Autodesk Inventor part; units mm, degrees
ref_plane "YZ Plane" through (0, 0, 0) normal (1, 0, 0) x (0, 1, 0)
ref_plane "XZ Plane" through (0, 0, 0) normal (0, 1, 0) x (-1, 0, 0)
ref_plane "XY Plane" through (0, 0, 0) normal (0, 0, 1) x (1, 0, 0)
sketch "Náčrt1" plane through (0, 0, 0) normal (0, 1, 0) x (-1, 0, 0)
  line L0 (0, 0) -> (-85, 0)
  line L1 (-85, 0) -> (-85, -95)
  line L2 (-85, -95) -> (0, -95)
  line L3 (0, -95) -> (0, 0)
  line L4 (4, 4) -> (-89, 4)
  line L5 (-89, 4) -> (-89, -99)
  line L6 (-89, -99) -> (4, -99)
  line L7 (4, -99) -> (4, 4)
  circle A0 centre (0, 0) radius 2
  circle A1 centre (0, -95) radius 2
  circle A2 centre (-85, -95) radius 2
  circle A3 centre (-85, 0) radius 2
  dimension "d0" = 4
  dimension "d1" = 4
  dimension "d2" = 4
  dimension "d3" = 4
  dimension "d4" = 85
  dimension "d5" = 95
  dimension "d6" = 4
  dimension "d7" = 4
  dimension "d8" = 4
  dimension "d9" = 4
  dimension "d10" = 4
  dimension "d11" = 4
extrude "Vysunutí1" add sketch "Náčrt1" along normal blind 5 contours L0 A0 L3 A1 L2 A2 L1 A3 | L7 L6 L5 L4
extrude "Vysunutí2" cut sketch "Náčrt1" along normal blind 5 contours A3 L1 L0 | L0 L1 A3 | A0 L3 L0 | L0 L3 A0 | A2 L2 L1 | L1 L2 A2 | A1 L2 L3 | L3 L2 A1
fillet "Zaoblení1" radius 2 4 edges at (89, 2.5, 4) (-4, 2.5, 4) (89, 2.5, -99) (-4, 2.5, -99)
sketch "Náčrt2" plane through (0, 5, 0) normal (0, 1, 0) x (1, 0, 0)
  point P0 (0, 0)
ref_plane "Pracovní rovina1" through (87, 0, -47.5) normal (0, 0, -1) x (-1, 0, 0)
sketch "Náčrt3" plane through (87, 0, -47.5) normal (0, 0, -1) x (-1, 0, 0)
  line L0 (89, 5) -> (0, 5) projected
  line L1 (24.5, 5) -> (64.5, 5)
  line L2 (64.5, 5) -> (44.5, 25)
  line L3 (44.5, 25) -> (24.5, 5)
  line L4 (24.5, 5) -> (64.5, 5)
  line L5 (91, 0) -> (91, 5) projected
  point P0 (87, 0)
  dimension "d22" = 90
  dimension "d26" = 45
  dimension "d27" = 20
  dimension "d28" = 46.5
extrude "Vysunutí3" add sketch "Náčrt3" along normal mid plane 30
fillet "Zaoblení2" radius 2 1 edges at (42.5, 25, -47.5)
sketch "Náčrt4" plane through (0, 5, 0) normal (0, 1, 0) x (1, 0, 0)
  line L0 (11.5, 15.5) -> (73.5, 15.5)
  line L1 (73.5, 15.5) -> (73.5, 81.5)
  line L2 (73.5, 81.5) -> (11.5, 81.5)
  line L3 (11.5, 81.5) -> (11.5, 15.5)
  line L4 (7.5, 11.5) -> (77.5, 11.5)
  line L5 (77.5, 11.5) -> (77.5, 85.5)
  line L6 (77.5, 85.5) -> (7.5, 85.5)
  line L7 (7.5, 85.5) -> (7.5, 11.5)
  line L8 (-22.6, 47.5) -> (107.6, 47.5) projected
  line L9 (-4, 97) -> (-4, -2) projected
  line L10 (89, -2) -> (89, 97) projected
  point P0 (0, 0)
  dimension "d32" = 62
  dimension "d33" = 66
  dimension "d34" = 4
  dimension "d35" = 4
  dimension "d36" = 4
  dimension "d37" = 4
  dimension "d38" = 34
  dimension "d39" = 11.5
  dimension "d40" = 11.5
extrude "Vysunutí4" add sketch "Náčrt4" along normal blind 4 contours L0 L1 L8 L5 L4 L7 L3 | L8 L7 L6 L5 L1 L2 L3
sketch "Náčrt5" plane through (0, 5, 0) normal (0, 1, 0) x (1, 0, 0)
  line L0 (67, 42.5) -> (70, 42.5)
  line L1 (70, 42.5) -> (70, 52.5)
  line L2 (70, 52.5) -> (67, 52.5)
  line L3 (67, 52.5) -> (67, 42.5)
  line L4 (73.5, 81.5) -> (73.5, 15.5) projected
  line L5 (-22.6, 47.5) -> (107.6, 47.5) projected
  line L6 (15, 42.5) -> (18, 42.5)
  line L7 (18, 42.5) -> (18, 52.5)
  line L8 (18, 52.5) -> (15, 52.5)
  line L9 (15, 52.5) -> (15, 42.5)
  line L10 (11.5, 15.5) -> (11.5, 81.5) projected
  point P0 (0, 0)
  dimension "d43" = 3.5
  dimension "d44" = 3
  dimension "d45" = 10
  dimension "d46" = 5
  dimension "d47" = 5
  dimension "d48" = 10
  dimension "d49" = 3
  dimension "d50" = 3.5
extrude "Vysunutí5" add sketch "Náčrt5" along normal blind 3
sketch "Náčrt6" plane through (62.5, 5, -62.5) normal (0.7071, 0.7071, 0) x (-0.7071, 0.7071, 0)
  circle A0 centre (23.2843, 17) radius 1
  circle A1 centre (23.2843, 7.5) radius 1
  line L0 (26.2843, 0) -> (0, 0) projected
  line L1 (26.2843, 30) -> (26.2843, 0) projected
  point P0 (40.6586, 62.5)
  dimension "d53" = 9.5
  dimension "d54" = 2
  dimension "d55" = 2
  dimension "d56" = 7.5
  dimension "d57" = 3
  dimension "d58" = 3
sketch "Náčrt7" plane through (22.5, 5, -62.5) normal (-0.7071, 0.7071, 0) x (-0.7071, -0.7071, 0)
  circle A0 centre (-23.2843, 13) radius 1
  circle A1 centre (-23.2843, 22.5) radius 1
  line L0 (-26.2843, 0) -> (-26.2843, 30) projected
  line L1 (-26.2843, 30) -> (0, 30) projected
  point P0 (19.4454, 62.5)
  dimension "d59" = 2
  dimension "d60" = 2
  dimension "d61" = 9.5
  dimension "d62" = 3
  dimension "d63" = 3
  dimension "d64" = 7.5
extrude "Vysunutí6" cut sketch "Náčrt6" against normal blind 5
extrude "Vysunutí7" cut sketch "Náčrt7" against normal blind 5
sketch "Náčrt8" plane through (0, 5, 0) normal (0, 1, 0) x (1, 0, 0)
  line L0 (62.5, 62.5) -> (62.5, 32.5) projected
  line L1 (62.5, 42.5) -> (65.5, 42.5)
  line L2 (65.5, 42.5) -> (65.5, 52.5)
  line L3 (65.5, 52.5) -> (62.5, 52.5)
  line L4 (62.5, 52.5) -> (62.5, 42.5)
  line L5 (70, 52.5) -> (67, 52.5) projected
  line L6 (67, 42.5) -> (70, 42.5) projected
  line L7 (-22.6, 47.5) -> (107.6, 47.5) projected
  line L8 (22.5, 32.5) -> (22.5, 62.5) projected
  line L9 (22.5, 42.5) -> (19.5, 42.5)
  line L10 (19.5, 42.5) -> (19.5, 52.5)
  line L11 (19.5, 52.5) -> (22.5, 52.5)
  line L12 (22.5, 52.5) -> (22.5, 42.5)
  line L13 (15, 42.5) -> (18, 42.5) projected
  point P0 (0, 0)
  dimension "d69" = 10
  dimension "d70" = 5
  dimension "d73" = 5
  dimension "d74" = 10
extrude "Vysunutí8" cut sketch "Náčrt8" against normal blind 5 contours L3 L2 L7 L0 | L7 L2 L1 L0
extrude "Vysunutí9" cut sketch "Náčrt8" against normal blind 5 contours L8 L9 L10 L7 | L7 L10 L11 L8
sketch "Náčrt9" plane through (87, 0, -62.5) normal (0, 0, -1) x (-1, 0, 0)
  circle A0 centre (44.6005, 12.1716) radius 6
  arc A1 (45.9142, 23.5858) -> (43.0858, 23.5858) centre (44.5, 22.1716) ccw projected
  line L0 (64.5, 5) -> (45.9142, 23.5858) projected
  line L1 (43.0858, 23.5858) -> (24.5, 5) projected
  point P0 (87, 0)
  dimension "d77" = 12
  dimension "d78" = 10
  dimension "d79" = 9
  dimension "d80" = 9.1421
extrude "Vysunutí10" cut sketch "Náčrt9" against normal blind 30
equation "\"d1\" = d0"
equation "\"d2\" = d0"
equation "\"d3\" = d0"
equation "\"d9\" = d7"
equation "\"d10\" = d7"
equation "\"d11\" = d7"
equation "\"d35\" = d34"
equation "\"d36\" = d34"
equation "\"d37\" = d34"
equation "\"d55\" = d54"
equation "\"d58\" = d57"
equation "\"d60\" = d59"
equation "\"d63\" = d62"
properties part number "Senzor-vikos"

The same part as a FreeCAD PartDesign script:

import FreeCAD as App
import Part
import Sketcher

V = App.Vector
Q = App.Units.Quantity


def edges_at(feature, points):
    """Names of the edges that pass closest to the given points."""
    edges = feature.Shape.Edges
    near = lambda p: min(range(len(edges)), key=lambda i: edges[i].distToShape(Part.Vertex(*p))[0])
    return sorted({f"Edge{near(p) + 1}" for p in points})

doc = App.newDocument("Part")
body = doc.addObject("PartDesign::Body", "Body")

sketch1 = body.newObject("Sketcher::SketchObject", "Sketch")
sketch1.AttachmentSupport = (doc.getObject("XZ_Plane"), [""])
sketch1.MapMode = "FlatFace"
sketch1.addGeometry([
    Part.LineSegment(V(-4, -99, 0), V(-4, 4, 0)),
    Part.LineSegment(V(-4, 4, 0), V(89, 4, 0)),
    Part.LineSegment(V(89, 4, 0), V(89, -99, 0)),
    Part.LineSegment(V(89, -99, 0), V(-4, -99, 0)),
    Part.Circle(V(0, 0, 0), V(0, 0, 1), 2),
    Part.Circle(V(0, -95, 0), V(0, 0, 1), 2),
    Part.Circle(V(85, -95, 0), V(0, 0, 1), 2),
    Part.Circle(V(85, 0, 0), V(0, 0, 1), 2),
], False)
sketch1.addConstraint([
    Sketcher.Constraint("Coincident", 0, 2, 1, 1),
    Sketcher.Constraint("Coincident", 1, 2, 2, 1),
    Sketcher.Constraint("Coincident", 2, 2, 3, 1),
    Sketcher.Constraint("Coincident", 3, 2, 0, 1),
    Sketcher.Constraint("Vertical", 0),
    Sketcher.Constraint("Horizontal", 1),
    Sketcher.Constraint("Vertical", 2),
    Sketcher.Constraint("Horizontal", 3),
    Sketcher.Constraint("Coincident", 4, 3, -1, 1),
    Sketcher.Constraint("Equal", 4, 5),
    Sketcher.Constraint("Equal", 5, 6),
    Sketcher.Constraint("Equal", 6, 7),
    Sketcher.Constraint("PointOnObject", 5, 3, -2),
    Sketcher.Constraint("PointOnObject", 7, 3, -1),
    Sketcher.Constraint("Horizontal", 5, 3, 6, 3),
    Sketcher.Constraint("Vertical", 6, 3, 7, 3),
    Sketcher.Constraint("Diameter", 4, Q("4 mm")),
    Sketcher.Constraint("DistanceY", 5, 3, -1, 1, Q("95 mm")),
    Sketcher.Constraint("DistanceX", -1, 1, 6, 3, Q("85 mm")),
    Sketcher.Constraint("DistanceX", 0, 2, -1, 1, Q("4 mm")),
    Sketcher.Constraint("DistanceY", -1, 1, 0, 2, Q("4 mm")),
    Sketcher.Constraint("DistanceX", 7, 3, 1, 2, Q("4 mm")),
    Sketcher.Constraint("DistanceY", 2, 2, 6, 3, Q("4 mm")),
])
pad1 = body.newObject("PartDesign::Pad", "Pad")
pad1.Profile = sketch1
pad1.Length = 5
pad1.Reversed = True

sketch2 = body.newObject("Sketcher::SketchObject", "Sketch001")
sketch2.AttachmentSupport = (doc.getObject("XZ_Plane"), [""])
sketch2.MapMode = "FlatFace"
sketch2.addGeometry([
    Part.Circle(V(85, 0, 0), V(0, 0, 1), 2),
    Part.Circle(V(0, 0, 0), V(0, 0, 1), 2),
    Part.Circle(V(85, -95, 0), V(0, 0, 1), 2),
    Part.Circle(V(0, -95, 0), V(0, 0, 1), 2),
], False)
sketch2.addConstraint([
    Sketcher.Constraint("Coincident", 1, 3, -1, 1),
    Sketcher.Constraint("Equal", 0, 1),
    Sketcher.Constraint("Equal", 1, 2),
    Sketcher.Constraint("Equal", 2, 3),
    Sketcher.Constraint("PointOnObject", 0, 3, -1),
    Sketcher.Constraint("PointOnObject", 3, 3, -2),
    Sketcher.Constraint("Horizontal", 2, 3, 3, 3),
    Sketcher.Constraint("Vertical", 0, 3, 2, 3),
    Sketcher.Constraint("Diameter", 0, Q("4 mm")),
    Sketcher.Constraint("DistanceX", -1, 1, 0, 3, Q("85 mm")),
    Sketcher.Constraint("DistanceY", 2, 3, -1, 1, Q("95 mm")),
])
pocket1 = body.newObject("PartDesign::Pocket", "Pocket")
pocket1.Profile = sketch2
pocket1.Length = 5
doc.recompute()

fillet = body.newObject("PartDesign::Fillet", "Fillet")
fillet.Base = (pocket1, edges_at(pocket1, [
    (89, 2.5, 4),
    (-4, 2.5, 4),
    (89, 2.5, -99),
    (-4, 2.5, -99),
]))
fillet.Radius = 2

sketch3 = body.newObject("Sketcher::SketchObject", "Sketch002")
sketch3.AttachmentSupport = (doc.getObject("XY_Plane"), [""])
sketch3.MapMode = "FlatFace"
sketch3.AttachmentOffset = App.Placement(V(0, 0, -47.5), App.Rotation())
sketch3.addGeometry([
    Part.LineSegment(V(62.5, 5, 0), V(22.5, 5, 0)),
    Part.LineSegment(V(22.5, 5, 0), V(42.5, 25, 0)),
    Part.LineSegment(V(42.5, 25, 0), V(62.5, 5, 0)),
], False)
sketch3.addConstraint([
    Sketcher.Constraint("Coincident", 0, 2, 1, 1),
    Sketcher.Constraint("Coincident", 1, 2, 2, 1),
    Sketcher.Constraint("Coincident", 2, 2, 0, 1),
    Sketcher.Constraint("Horizontal", 0),
    Sketcher.Constraint("Perpendicular", 1, 2),
    Sketcher.Constraint("Equal", 1, 2),
    Sketcher.Constraint("DistanceX", 0, 2, 1, 2, Q("20 mm")),
    Sketcher.Constraint("DistanceY", -1, 1, 0, 2, Q("5 mm")),
    Sketcher.Constraint("DistanceX", -1, 1, 0, 2, Q("22.5 mm")),
])
pad2 = body.newObject("PartDesign::Pad", "Pad001")
pad2.Profile = sketch3
pad2.Length = 30
pad2.Midplane = True
doc.recompute()

fillet2 = body.newObject("PartDesign::Fillet", "Fillet001")
fillet2.Base = (pad2, edges_at(pad2, [(42.5, 25, -47.5)]))
fillet2.Radius = 2

sketch4 = body.newObject("Sketcher::SketchObject", "Sketch003")
sketch4.AttachmentSupport = (doc.getObject("XZ_Plane"), [""])
sketch4.MapMode = "FlatFace"
sketch4.AttachmentOffset = App.Placement(V(0, 0, -5), App.Rotation())
sketch4.addGeometry([
    Part.LineSegment(V(77.5, -11.5, 0), V(77.5, -85.5, 0)),
    Part.LineSegment(V(77.5, -85.5, 0), V(7.5, -85.5, 0)),
    Part.LineSegment(V(7.5, -85.5, 0), V(7.5, -11.5, 0)),
    Part.LineSegment(V(7.5, -11.5, 0), V(77.5, -11.5, 0)),
    Part.LineSegment(V(73.5, -15.5, 0), V(11.5, -15.5, 0)),
    Part.LineSegment(V(11.5, -15.5, 0), V(11.5, -81.5, 0)),
    Part.LineSegment(V(11.5, -81.5, 0), V(73.5, -81.5, 0)),
    Part.LineSegment(V(73.5, -81.5, 0), V(73.5, -15.5, 0)),
], False)
sketch4.addConstraint([
    Sketcher.Constraint("Coincident", 0, 2, 1, 1),
    Sketcher.Constraint("Coincident", 1, 2, 2, 1),
    Sketcher.Constraint("Coincident", 2, 2, 3, 1),
    Sketcher.Constraint("Coincident", 3, 2, 0, 1),
    Sketcher.Constraint("Coincident", 4, 2, 5, 1),
    Sketcher.Constraint("Coincident", 5, 2, 6, 1),
    Sketcher.Constraint("Coincident", 6, 2, 7, 1),
    Sketcher.Constraint("Coincident", 7, 2, 4, 1),
    Sketcher.Constraint("Vertical", 0),
    Sketcher.Constraint("Horizontal", 1),
    Sketcher.Constraint("Vertical", 2),
    Sketcher.Constraint("Horizontal", 3),
    Sketcher.Constraint("Horizontal", 4),
    Sketcher.Constraint("Vertical", 5),
    Sketcher.Constraint("Horizontal", 6),
    Sketcher.Constraint("Vertical", 7),
    Sketcher.Constraint("DistanceX", 4, 2, 4, 1, Q("62 mm")),
    Sketcher.Constraint("DistanceY", 5, 2, 5, 1, Q("66 mm")),
    Sketcher.Constraint("DistanceX", 2, 2, 4, 2, Q("4 mm")),
    Sketcher.Constraint("DistanceY", 4, 2, 2, 2, Q("4 mm")),
    Sketcher.Constraint("DistanceX", 4, 2, 3, 2, Q("66 mm")),
    Sketcher.Constraint("DistanceY", 1, 2, 5, 2, Q("4 mm")),
    Sketcher.Constraint("DistanceY", 2, 2, -1, 1, Q("11.5 mm")),
    Sketcher.Constraint("DistanceX", -1, 1, 4, 2, Q("11.5 mm")),
])
pad3 = body.newObject("PartDesign::Pad", "Pad002")
pad3.Profile = sketch4
pad3.Length = 4
pad3.Reversed = True

sketch5 = body.newObject("Sketcher::SketchObject", "Sketch004")
sketch5.AttachmentSupport = (doc.getObject("XZ_Plane"), [""])
sketch5.MapMode = "FlatFace"
sketch5.AttachmentOffset = App.Placement(V(0, 0, -5), App.Rotation())
sketch5.addGeometry([
    Part.LineSegment(V(67, -42.5, 0), V(70, -42.5, 0)),
    Part.LineSegment(V(70, -42.5, 0), V(70, -52.5, 0)),
    Part.LineSegment(V(70, -52.5, 0), V(67, -52.5, 0)),
    Part.LineSegment(V(67, -52.5, 0), V(67, -42.5, 0)),
    Part.LineSegment(V(18, -42.5, 0), V(18, -52.5, 0)),
    Part.LineSegment(V(18, -52.5, 0), V(15, -52.5, 0)),
    Part.LineSegment(V(15, -52.5, 0), V(15, -42.5, 0)),
    Part.LineSegment(V(15, -42.5, 0), V(18, -42.5, 0)),
], False)
sketch5.addConstraint([
    Sketcher.Constraint("Coincident", 0, 2, 1, 1),
    Sketcher.Constraint("Coincident", 1, 2, 2, 1),
    Sketcher.Constraint("Coincident", 2, 2, 3, 1),
    Sketcher.Constraint("Coincident", 3, 2, 0, 1),
    Sketcher.Constraint("Coincident", 4, 2, 5, 1),
    Sketcher.Constraint("Coincident", 5, 2, 6, 1),
    Sketcher.Constraint("Coincident", 6, 2, 7, 1),
    Sketcher.Constraint("Coincident", 7, 2, 4, 1),
    Sketcher.Constraint("Horizontal", 0),
    Sketcher.Constraint("Vertical", 1),
    Sketcher.Constraint("Horizontal", 2),
    Sketcher.Constraint("Vertical", 3),
    Sketcher.Constraint("Vertical", 4),
    Sketcher.Constraint("Horizontal", 5),
    Sketcher.Constraint("Vertical", 6),
    Sketcher.Constraint("Horizontal", 7),
    Sketcher.Constraint("Horizontal", 2, 2, 4, 2),
    Sketcher.Constraint("Horizontal", 3, 2, 6, 2),
    Sketcher.Constraint("Equal", 2, 5),
    Sketcher.Constraint("DistanceX", 0, 1, 0, 2, Q("3 mm")),
    Sketcher.Constraint("DistanceY", 1, 2, 1, 1, Q("10 mm")),
    Sketcher.Constraint("DistanceX", -1, 1, 0, 2, Q("70 mm")),
    Sketcher.Constraint("DistanceX", -1, 1, 4, 2, Q("18 mm")),
    Sketcher.Constraint("DistanceY", 0, 2, -1, 1, Q("42.5 mm")),
])
pad4 = body.newObject("PartDesign::Pad", "Pad003")
pad4.Profile = sketch5
pad4.Length = 3
pad4.Reversed = True

sketch6 = body.newObject("Sketcher::SketchObject", "Sketch005")
sketch6.Placement = App.Placement(V(62.5, 5, -62.5), App.Rotation(V(-0.707106781, 0.707106781, 0), V(0, 0, 0.999999999), V(0.707106781, 0.707106781, 0), "ZXY"))
sketch6.addGeometry([
    Part.Circle(V(23.2843, 17, 0), V(0, 0, 1), 1),
    Part.Circle(V(23.2843, 7.5, 0), V(0, 0, 1), 1),
], False)
sketch6.addConstraint([
    Sketcher.Constraint("Equal", 0, 1),
    Sketcher.Constraint("Vertical", 0, 3, 1, 3),
    Sketcher.Constraint("Diameter", 0, Q("2 mm")),
    Sketcher.Constraint("DistanceY", -1, 1, 1, 3, Q("7.5 mm")),
    Sketcher.Constraint("DistanceY", 1, 3, 0, 3, Q("9.5 mm")),
    Sketcher.Constraint("DistanceX", -1, 1, 0, 3, Q("23.2843 mm")),
])
pocket2 = body.newObject("PartDesign::Pocket", "Pocket001")
pocket2.Profile = sketch6
pocket2.Length = 5

sketch7 = body.newObject("Sketcher::SketchObject", "Sketch006")
sketch7.Placement = App.Placement(V(22.5, 5, -62.5), App.Rotation(V(-0.707106781, -0.707106781, 0), V(0, 0, 0.999999999), V(-0.707106781, 0.707106781, 0), "ZXY"))
sketch7.addGeometry([
    Part.Circle(V(-23.2843, 13, 0), V(0, 0, 1), 1),
    Part.Circle(V(-23.2843, 22.5, 0), V(0, 0, 1), 1),
], False)
sketch7.addConstraint([
    Sketcher.Constraint("Equal", 0, 1),
    Sketcher.Constraint("Vertical", 0, 3, 1, 3),
    Sketcher.Constraint("Diameter", 0, Q("2 mm")),
    Sketcher.Constraint("DistanceY", 0, 3, 1, 3, Q("9.5 mm")),
    Sketcher.Constraint("DistanceY", -1, 1, 0, 3, Q("13 mm")),
    Sketcher.Constraint("DistanceX", 0, 3, -1, 1, Q("23.2843 mm")),
])
pocket3 = body.newObject("PartDesign::Pocket", "Pocket002")
pocket3.Profile = sketch7
pocket3.Length = 5

sketch8 = body.newObject("Sketcher::SketchObject", "Sketch007")
sketch8.AttachmentSupport = (doc.getObject("XZ_Plane"), [""])
sketch8.MapMode = "FlatFace"
sketch8.AttachmentOffset = App.Placement(V(0, 0, -5), App.Rotation())
sketch8.addGeometry([
    Part.LineSegment(V(65.5, -52.5, 0), V(62.5, -52.5, 0)),
    Part.LineSegment(V(62.5, -52.5, 0), V(62.5, -42.5, 0)),
    Part.LineSegment(V(62.5, -42.5, 0), V(65.5, -42.5, 0)),
    Part.LineSegment(V(65.5, -42.5, 0), V(65.5, -52.5, 0)),
], False)
sketch8.addConstraint([
    Sketcher.Constraint("Coincident", 0, 2, 1, 1),
    Sketcher.Constraint("Coincident", 1, 2, 2, 1),
    Sketcher.Constraint("Coincident", 2, 2, 3, 1),
    Sketcher.Constraint("Coincident", 3, 2, 0, 1),
    Sketcher.Constraint("Horizontal", 0),
    Sketcher.Constraint("Vertical", 1),
    Sketcher.Constraint("Horizontal", 2),
    Sketcher.Constraint("Vertical", 3),
    Sketcher.Constraint("DistanceY", 1, 1, 1, 2, Q("10 mm")),
    Sketcher.Constraint("DistanceX", 0, 2, 0, 1, Q("3 mm")),
    Sketcher.Constraint("DistanceX", -1, 1, 0, 2, Q("62.5 mm")),
    Sketcher.Constraint("DistanceY", 0, 2, -1, 1, Q("52.5 mm")),
])
pocket4 = body.newObject("PartDesign::Pocket", "Pocket003")
pocket4.Profile = sketch8
pocket4.Length = 5
pocket4.Reversed = True

sketch9 = body.newObject("Sketcher::SketchObject", "Sketch008")
sketch9.AttachmentSupport = (doc.getObject("XZ_Plane"), [""])
sketch9.MapMode = "FlatFace"
sketch9.AttachmentOffset = App.Placement(V(0, 0, -5), App.Rotation())
sketch9.addGeometry([
    Part.LineSegment(V(22.5, -42.5, 0), V(22.5, -52.5, 0)),
    Part.LineSegment(V(22.5, -52.5, 0), V(19.5, -52.5, 0)),
    Part.LineSegment(V(19.5, -52.5, 0), V(19.5, -42.5, 0)),
    Part.LineSegment(V(19.5, -42.5, 0), V(22.5, -42.5, 0)),
], False)
sketch9.addConstraint([
    Sketcher.Constraint("Coincident", 0, 2, 1, 1),
    Sketcher.Constraint("Coincident", 1, 2, 2, 1),
    Sketcher.Constraint("Coincident", 2, 2, 3, 1),
    Sketcher.Constraint("Coincident", 3, 2, 0, 1),
    Sketcher.Constraint("Vertical", 0),
    Sketcher.Constraint("Horizontal", 1),
    Sketcher.Constraint("Vertical", 2),
    Sketcher.Constraint("Horizontal", 3),
    Sketcher.Constraint("DistanceY", 0, 2, 0, 1, Q("10 mm")),
    Sketcher.Constraint("DistanceX", 1, 2, 1, 1, Q("3 mm")),
    Sketcher.Constraint("DistanceX", -1, 1, 0, 2, Q("22.5 mm")),
    Sketcher.Constraint("DistanceY", 0, 2, -1, 1, Q("52.5 mm")),
])
pocket5 = body.newObject("PartDesign::Pocket", "Pocket004")
pocket5.Profile = sketch9
pocket5.Length = 5
pocket5.Reversed = True

sketch10 = body.newObject("Sketcher::SketchObject", "Sketch009")
sketch10.AttachmentSupport = (doc.getObject("XY_Plane"), [""])
sketch10.MapMode = "FlatFace"
sketch10.AttachmentOffset = App.Placement(V(0, 0, -62.5), App.Rotation())
sketch10.addGeometry(Part.Circle(V(42.3995, 12.1716, 0), V(0, 0, 1), 6), False)
sketch10.addConstraint([
    Sketcher.Constraint("Diameter", 0, Q("12 mm")),
    Sketcher.Constraint("DistanceX", -1, 1, 0, 3, Q("42.3995 mm")),
    Sketcher.Constraint("DistanceY", -1, 1, 0, 3, Q("12.1716 mm")),
])
pocket6 = body.newObject("PartDesign::Pocket", "Pocket005")
pocket6.Profile = sketch10
pocket6.Length = 30
pocket6.Reversed = True

doc.recompute()
